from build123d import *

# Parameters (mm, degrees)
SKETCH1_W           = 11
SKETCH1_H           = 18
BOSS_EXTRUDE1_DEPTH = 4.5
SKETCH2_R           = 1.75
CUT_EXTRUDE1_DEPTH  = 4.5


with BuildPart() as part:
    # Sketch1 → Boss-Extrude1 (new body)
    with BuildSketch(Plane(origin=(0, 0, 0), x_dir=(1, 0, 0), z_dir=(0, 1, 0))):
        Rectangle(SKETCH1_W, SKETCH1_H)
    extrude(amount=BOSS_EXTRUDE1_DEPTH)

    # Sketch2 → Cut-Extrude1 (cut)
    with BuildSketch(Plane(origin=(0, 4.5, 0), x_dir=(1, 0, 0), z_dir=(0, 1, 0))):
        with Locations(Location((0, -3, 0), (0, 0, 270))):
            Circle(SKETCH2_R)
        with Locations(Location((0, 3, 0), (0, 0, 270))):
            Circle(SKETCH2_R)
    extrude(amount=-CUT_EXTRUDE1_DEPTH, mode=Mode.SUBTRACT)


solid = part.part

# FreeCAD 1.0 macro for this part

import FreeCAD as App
import Part
import Sketcher
Q = App.Units.Quantity

doc = App.newDocument("Part")
body = doc.addObject("PartDesign::Body", "Body")

sketch1 = body.newObject("Sketcher::SketchObject", "Sketch")
sketch1.AttachmentSupport = (doc.getObject("XZ_Plane"), [""])
sketch1.MapMode = "FlatFace"
sketch1.addGeometry([
    Part.LineSegment(App.Vector(-5.5, -9, 0), App.Vector(-5.5, 9, 0)),
    Part.LineSegment(App.Vector(-5.5, 9, 0), App.Vector(5.5, 9, 0)),
    Part.LineSegment(App.Vector(5.5, 9, 0), App.Vector(5.5, -9, 0)),
    Part.LineSegment(App.Vector(5.5, -9, 0), App.Vector(-5.5, -9, 0)),
], False)
sketch1.addConstraint([
    Sketcher.Constraint("Coincident", 0, 2, 1, 1),
    Sketcher.Constraint("Coincident", 1, 2, 2, 1),
    Sketcher.Constraint("Coincident", 2, 2, 3, 1),
    Sketcher.Constraint("Coincident", 3, 2, 0, 1),
    Sketcher.Constraint("Vertical", 0),
    Sketcher.Constraint("Horizontal", 1),
    Sketcher.Constraint("Vertical", 2),
    Sketcher.Constraint("Horizontal", 3),
    Sketcher.Constraint("Symmetric", 0, 2, 2, 2, -1, 1),
    Sketcher.Constraint("DistanceX", 1, 1, 1, 2, Q("11 mm")),
    Sketcher.Constraint("DistanceY", 0, 1, 0, 2, Q("18 mm")),
])
pad1 = body.newObject("PartDesign::Pad", "Pad")
pad1.Profile = sketch1
pad1.Length = 4.5
pad1.Reversed = True

sketch2 = body.newObject("Sketcher::SketchObject", "Sketch001")
sketch2.AttachmentSupport = (doc.getObject("XZ_Plane"), [""])
sketch2.MapMode = "FlatFace"
sketch2.AttachmentOffset = App.Placement(App.Vector(0, 0, -4.5), App.Rotation())
sketch2.addGeometry([
    Part.Circle(App.Vector(0, 3, 0), App.Vector(0, 0, 1), 1.75),
    Part.Circle(App.Vector(0, -3, 0), App.Vector(0, 0, 1), 1.75),
], False)
sketch2.addConstraint([
    Sketcher.Constraint("Equal", 0, 1),
    Sketcher.Constraint("Symmetric", 0, 3, 1, 3, -1, 1),
    Sketcher.Constraint("PointOnObject", 0, 3, -2),
    Sketcher.Constraint("Diameter", 0, Q("3.5 mm")),
    Sketcher.Constraint("DistanceY", -1, 1, 0, 3, Q("3 mm")),
])
pocket1 = body.newObject("PartDesign::Pocket", "Pocket")
pocket1.Profile = sketch2
pocket1.Length = 4.5
pocket1.Reversed = True

doc.recompute()
